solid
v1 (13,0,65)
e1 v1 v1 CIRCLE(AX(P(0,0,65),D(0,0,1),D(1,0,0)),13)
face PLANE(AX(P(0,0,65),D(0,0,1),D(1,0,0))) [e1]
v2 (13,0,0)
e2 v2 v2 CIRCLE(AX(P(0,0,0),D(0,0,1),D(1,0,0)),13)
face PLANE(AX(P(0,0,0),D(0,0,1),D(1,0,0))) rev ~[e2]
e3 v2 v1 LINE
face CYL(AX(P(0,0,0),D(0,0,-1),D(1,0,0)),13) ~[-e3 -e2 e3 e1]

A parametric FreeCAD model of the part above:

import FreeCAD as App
import Part
import Sketcher
Q = App.Units.Quantity

doc = App.newDocument("Part")
params = doc.addObject("Spreadsheet::Sheet", "Params")
for row, (alias, value) in enumerate([
    ("sketch1_diameter", "26 mm"),
    ("pad1_length", "65 mm"),
], start=1):
    params.set(f"A{row}", alias)
    params.set(f"B{row}", "=" + value)
    params.setAlias(f"B{row}", alias)

body = doc.addObject("PartDesign::Body", "Body")

sketch1 = body.newObject("Sketcher::SketchObject", "Sketch")
sketch1.AttachmentSupport = (doc.getObject("XY_Plane"), [""])
sketch1.MapMode = "FlatFace"
sketch1.addGeometry(Part.Circle(App.Vector(0, 0, 0), App.Vector(0, 0, 1), 13), False)
sketch1.addConstraint(Sketcher.Constraint("Coincident", 0, 3, -1, 1))
sketch1.addConstraint(Sketcher.Constraint("Diameter", 0, Q("26 mm")))
sketch1.setExpression("Constraints[1]", "Params.sketch1_diameter")
pad1 = body.newObject("PartDesign::Pad", "Pad")
pad1.Profile = sketch1
pad1.setExpression("Length", "Params.pad1_length")

doc.recompute()
